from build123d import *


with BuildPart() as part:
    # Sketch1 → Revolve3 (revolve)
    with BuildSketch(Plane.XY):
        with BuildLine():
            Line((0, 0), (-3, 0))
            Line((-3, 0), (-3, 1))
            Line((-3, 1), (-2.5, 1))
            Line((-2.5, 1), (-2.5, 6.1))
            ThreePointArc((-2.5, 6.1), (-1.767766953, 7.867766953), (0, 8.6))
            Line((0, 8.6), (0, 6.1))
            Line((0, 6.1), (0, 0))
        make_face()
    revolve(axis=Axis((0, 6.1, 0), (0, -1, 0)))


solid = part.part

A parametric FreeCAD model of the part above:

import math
import FreeCAD as App
import Part
import Sketcher
Q = App.Units.Quantity

doc = App.newDocument("Part")
body = doc.addObject("PartDesign::Body", "Body")

# Sketch on XY plane
sketch1 = doc.addObject("Sketcher::SketchObject", "Sketch")
body.addObject(sketch1)
sketch1.AttachmentSupport = (doc.XY_Plane, [""])
sketch1.MapMode = "FlatFace"
sketch1.addGeometry([
    Part.LineSegment(App.Vector(-3, 0, 0), App.Vector(0, 0, 0)),  # 0
    Part.LineSegment(App.Vector(0, 0, 0), App.Vector(0, 8.6, 0)),  # 1
    Part.ArcOfCircle(Part.Circle(App.Vector(0, 6.1, 0), App.Vector(0, 0, 1), 2.5), math.radians(90), math.radians(180)),  # 2
    Part.LineSegment(App.Vector(-2.5, 6.1, 0), App.Vector(-2.5, 1, 0)),  # 3
    Part.LineSegment(App.Vector(-2.5, 1, 0), App.Vector(-3, 1, 0)),  # 4
    Part.LineSegment(App.Vector(-3, 1, 0), App.Vector(-3, 0, 0)),  # 5
], False)
sketch1.addConstraint([
    Sketcher.Constraint("Coincident", 0, 2, 1, 1),
    Sketcher.Constraint("Coincident", 1, 2, 2, 1),
    Sketcher.Constraint("Tangent", 2, 2, 3, 1),
    Sketcher.Constraint("Coincident", 3, 2, 4, 1),
    Sketcher.Constraint("Coincident", 4, 2, 5, 1),
    Sketcher.Constraint("Coincident", 5, 2, 0, 1),
    Sketcher.Constraint("Horizontal", 0),
    Sketcher.Constraint("Vertical", 1),
    Sketcher.Constraint("Vertical", 3),
    Sketcher.Constraint("Horizontal", 4),
    Sketcher.Constraint("Vertical", 5),
    Sketcher.Constraint("Coincident", 0, 2, -1, 1),
    Sketcher.Constraint("PointOnObject", 2, 3, -2),
    Sketcher.Constraint("Radius", 2, Q("2.5 mm")),
    Sketcher.Constraint("DistanceX", 0, 1, 0, 2, Q("3 mm")),
    Sketcher.Constraint("DistanceY", 5, 2, 5, 1, Q("1 mm")),
    Sketcher.Constraint("DistanceY", 1, 1, 1, 2, Q("8.6 mm")),
])
revolution = doc.addObject("PartDesign::Revolution", "Revolution")
body.addObject(revolution)
revolution.Profile = sketch1
revolution.ReferenceAxis = (sketch1, ["V_Axis"])
revolution.Angle = 360

doc.recompute()
